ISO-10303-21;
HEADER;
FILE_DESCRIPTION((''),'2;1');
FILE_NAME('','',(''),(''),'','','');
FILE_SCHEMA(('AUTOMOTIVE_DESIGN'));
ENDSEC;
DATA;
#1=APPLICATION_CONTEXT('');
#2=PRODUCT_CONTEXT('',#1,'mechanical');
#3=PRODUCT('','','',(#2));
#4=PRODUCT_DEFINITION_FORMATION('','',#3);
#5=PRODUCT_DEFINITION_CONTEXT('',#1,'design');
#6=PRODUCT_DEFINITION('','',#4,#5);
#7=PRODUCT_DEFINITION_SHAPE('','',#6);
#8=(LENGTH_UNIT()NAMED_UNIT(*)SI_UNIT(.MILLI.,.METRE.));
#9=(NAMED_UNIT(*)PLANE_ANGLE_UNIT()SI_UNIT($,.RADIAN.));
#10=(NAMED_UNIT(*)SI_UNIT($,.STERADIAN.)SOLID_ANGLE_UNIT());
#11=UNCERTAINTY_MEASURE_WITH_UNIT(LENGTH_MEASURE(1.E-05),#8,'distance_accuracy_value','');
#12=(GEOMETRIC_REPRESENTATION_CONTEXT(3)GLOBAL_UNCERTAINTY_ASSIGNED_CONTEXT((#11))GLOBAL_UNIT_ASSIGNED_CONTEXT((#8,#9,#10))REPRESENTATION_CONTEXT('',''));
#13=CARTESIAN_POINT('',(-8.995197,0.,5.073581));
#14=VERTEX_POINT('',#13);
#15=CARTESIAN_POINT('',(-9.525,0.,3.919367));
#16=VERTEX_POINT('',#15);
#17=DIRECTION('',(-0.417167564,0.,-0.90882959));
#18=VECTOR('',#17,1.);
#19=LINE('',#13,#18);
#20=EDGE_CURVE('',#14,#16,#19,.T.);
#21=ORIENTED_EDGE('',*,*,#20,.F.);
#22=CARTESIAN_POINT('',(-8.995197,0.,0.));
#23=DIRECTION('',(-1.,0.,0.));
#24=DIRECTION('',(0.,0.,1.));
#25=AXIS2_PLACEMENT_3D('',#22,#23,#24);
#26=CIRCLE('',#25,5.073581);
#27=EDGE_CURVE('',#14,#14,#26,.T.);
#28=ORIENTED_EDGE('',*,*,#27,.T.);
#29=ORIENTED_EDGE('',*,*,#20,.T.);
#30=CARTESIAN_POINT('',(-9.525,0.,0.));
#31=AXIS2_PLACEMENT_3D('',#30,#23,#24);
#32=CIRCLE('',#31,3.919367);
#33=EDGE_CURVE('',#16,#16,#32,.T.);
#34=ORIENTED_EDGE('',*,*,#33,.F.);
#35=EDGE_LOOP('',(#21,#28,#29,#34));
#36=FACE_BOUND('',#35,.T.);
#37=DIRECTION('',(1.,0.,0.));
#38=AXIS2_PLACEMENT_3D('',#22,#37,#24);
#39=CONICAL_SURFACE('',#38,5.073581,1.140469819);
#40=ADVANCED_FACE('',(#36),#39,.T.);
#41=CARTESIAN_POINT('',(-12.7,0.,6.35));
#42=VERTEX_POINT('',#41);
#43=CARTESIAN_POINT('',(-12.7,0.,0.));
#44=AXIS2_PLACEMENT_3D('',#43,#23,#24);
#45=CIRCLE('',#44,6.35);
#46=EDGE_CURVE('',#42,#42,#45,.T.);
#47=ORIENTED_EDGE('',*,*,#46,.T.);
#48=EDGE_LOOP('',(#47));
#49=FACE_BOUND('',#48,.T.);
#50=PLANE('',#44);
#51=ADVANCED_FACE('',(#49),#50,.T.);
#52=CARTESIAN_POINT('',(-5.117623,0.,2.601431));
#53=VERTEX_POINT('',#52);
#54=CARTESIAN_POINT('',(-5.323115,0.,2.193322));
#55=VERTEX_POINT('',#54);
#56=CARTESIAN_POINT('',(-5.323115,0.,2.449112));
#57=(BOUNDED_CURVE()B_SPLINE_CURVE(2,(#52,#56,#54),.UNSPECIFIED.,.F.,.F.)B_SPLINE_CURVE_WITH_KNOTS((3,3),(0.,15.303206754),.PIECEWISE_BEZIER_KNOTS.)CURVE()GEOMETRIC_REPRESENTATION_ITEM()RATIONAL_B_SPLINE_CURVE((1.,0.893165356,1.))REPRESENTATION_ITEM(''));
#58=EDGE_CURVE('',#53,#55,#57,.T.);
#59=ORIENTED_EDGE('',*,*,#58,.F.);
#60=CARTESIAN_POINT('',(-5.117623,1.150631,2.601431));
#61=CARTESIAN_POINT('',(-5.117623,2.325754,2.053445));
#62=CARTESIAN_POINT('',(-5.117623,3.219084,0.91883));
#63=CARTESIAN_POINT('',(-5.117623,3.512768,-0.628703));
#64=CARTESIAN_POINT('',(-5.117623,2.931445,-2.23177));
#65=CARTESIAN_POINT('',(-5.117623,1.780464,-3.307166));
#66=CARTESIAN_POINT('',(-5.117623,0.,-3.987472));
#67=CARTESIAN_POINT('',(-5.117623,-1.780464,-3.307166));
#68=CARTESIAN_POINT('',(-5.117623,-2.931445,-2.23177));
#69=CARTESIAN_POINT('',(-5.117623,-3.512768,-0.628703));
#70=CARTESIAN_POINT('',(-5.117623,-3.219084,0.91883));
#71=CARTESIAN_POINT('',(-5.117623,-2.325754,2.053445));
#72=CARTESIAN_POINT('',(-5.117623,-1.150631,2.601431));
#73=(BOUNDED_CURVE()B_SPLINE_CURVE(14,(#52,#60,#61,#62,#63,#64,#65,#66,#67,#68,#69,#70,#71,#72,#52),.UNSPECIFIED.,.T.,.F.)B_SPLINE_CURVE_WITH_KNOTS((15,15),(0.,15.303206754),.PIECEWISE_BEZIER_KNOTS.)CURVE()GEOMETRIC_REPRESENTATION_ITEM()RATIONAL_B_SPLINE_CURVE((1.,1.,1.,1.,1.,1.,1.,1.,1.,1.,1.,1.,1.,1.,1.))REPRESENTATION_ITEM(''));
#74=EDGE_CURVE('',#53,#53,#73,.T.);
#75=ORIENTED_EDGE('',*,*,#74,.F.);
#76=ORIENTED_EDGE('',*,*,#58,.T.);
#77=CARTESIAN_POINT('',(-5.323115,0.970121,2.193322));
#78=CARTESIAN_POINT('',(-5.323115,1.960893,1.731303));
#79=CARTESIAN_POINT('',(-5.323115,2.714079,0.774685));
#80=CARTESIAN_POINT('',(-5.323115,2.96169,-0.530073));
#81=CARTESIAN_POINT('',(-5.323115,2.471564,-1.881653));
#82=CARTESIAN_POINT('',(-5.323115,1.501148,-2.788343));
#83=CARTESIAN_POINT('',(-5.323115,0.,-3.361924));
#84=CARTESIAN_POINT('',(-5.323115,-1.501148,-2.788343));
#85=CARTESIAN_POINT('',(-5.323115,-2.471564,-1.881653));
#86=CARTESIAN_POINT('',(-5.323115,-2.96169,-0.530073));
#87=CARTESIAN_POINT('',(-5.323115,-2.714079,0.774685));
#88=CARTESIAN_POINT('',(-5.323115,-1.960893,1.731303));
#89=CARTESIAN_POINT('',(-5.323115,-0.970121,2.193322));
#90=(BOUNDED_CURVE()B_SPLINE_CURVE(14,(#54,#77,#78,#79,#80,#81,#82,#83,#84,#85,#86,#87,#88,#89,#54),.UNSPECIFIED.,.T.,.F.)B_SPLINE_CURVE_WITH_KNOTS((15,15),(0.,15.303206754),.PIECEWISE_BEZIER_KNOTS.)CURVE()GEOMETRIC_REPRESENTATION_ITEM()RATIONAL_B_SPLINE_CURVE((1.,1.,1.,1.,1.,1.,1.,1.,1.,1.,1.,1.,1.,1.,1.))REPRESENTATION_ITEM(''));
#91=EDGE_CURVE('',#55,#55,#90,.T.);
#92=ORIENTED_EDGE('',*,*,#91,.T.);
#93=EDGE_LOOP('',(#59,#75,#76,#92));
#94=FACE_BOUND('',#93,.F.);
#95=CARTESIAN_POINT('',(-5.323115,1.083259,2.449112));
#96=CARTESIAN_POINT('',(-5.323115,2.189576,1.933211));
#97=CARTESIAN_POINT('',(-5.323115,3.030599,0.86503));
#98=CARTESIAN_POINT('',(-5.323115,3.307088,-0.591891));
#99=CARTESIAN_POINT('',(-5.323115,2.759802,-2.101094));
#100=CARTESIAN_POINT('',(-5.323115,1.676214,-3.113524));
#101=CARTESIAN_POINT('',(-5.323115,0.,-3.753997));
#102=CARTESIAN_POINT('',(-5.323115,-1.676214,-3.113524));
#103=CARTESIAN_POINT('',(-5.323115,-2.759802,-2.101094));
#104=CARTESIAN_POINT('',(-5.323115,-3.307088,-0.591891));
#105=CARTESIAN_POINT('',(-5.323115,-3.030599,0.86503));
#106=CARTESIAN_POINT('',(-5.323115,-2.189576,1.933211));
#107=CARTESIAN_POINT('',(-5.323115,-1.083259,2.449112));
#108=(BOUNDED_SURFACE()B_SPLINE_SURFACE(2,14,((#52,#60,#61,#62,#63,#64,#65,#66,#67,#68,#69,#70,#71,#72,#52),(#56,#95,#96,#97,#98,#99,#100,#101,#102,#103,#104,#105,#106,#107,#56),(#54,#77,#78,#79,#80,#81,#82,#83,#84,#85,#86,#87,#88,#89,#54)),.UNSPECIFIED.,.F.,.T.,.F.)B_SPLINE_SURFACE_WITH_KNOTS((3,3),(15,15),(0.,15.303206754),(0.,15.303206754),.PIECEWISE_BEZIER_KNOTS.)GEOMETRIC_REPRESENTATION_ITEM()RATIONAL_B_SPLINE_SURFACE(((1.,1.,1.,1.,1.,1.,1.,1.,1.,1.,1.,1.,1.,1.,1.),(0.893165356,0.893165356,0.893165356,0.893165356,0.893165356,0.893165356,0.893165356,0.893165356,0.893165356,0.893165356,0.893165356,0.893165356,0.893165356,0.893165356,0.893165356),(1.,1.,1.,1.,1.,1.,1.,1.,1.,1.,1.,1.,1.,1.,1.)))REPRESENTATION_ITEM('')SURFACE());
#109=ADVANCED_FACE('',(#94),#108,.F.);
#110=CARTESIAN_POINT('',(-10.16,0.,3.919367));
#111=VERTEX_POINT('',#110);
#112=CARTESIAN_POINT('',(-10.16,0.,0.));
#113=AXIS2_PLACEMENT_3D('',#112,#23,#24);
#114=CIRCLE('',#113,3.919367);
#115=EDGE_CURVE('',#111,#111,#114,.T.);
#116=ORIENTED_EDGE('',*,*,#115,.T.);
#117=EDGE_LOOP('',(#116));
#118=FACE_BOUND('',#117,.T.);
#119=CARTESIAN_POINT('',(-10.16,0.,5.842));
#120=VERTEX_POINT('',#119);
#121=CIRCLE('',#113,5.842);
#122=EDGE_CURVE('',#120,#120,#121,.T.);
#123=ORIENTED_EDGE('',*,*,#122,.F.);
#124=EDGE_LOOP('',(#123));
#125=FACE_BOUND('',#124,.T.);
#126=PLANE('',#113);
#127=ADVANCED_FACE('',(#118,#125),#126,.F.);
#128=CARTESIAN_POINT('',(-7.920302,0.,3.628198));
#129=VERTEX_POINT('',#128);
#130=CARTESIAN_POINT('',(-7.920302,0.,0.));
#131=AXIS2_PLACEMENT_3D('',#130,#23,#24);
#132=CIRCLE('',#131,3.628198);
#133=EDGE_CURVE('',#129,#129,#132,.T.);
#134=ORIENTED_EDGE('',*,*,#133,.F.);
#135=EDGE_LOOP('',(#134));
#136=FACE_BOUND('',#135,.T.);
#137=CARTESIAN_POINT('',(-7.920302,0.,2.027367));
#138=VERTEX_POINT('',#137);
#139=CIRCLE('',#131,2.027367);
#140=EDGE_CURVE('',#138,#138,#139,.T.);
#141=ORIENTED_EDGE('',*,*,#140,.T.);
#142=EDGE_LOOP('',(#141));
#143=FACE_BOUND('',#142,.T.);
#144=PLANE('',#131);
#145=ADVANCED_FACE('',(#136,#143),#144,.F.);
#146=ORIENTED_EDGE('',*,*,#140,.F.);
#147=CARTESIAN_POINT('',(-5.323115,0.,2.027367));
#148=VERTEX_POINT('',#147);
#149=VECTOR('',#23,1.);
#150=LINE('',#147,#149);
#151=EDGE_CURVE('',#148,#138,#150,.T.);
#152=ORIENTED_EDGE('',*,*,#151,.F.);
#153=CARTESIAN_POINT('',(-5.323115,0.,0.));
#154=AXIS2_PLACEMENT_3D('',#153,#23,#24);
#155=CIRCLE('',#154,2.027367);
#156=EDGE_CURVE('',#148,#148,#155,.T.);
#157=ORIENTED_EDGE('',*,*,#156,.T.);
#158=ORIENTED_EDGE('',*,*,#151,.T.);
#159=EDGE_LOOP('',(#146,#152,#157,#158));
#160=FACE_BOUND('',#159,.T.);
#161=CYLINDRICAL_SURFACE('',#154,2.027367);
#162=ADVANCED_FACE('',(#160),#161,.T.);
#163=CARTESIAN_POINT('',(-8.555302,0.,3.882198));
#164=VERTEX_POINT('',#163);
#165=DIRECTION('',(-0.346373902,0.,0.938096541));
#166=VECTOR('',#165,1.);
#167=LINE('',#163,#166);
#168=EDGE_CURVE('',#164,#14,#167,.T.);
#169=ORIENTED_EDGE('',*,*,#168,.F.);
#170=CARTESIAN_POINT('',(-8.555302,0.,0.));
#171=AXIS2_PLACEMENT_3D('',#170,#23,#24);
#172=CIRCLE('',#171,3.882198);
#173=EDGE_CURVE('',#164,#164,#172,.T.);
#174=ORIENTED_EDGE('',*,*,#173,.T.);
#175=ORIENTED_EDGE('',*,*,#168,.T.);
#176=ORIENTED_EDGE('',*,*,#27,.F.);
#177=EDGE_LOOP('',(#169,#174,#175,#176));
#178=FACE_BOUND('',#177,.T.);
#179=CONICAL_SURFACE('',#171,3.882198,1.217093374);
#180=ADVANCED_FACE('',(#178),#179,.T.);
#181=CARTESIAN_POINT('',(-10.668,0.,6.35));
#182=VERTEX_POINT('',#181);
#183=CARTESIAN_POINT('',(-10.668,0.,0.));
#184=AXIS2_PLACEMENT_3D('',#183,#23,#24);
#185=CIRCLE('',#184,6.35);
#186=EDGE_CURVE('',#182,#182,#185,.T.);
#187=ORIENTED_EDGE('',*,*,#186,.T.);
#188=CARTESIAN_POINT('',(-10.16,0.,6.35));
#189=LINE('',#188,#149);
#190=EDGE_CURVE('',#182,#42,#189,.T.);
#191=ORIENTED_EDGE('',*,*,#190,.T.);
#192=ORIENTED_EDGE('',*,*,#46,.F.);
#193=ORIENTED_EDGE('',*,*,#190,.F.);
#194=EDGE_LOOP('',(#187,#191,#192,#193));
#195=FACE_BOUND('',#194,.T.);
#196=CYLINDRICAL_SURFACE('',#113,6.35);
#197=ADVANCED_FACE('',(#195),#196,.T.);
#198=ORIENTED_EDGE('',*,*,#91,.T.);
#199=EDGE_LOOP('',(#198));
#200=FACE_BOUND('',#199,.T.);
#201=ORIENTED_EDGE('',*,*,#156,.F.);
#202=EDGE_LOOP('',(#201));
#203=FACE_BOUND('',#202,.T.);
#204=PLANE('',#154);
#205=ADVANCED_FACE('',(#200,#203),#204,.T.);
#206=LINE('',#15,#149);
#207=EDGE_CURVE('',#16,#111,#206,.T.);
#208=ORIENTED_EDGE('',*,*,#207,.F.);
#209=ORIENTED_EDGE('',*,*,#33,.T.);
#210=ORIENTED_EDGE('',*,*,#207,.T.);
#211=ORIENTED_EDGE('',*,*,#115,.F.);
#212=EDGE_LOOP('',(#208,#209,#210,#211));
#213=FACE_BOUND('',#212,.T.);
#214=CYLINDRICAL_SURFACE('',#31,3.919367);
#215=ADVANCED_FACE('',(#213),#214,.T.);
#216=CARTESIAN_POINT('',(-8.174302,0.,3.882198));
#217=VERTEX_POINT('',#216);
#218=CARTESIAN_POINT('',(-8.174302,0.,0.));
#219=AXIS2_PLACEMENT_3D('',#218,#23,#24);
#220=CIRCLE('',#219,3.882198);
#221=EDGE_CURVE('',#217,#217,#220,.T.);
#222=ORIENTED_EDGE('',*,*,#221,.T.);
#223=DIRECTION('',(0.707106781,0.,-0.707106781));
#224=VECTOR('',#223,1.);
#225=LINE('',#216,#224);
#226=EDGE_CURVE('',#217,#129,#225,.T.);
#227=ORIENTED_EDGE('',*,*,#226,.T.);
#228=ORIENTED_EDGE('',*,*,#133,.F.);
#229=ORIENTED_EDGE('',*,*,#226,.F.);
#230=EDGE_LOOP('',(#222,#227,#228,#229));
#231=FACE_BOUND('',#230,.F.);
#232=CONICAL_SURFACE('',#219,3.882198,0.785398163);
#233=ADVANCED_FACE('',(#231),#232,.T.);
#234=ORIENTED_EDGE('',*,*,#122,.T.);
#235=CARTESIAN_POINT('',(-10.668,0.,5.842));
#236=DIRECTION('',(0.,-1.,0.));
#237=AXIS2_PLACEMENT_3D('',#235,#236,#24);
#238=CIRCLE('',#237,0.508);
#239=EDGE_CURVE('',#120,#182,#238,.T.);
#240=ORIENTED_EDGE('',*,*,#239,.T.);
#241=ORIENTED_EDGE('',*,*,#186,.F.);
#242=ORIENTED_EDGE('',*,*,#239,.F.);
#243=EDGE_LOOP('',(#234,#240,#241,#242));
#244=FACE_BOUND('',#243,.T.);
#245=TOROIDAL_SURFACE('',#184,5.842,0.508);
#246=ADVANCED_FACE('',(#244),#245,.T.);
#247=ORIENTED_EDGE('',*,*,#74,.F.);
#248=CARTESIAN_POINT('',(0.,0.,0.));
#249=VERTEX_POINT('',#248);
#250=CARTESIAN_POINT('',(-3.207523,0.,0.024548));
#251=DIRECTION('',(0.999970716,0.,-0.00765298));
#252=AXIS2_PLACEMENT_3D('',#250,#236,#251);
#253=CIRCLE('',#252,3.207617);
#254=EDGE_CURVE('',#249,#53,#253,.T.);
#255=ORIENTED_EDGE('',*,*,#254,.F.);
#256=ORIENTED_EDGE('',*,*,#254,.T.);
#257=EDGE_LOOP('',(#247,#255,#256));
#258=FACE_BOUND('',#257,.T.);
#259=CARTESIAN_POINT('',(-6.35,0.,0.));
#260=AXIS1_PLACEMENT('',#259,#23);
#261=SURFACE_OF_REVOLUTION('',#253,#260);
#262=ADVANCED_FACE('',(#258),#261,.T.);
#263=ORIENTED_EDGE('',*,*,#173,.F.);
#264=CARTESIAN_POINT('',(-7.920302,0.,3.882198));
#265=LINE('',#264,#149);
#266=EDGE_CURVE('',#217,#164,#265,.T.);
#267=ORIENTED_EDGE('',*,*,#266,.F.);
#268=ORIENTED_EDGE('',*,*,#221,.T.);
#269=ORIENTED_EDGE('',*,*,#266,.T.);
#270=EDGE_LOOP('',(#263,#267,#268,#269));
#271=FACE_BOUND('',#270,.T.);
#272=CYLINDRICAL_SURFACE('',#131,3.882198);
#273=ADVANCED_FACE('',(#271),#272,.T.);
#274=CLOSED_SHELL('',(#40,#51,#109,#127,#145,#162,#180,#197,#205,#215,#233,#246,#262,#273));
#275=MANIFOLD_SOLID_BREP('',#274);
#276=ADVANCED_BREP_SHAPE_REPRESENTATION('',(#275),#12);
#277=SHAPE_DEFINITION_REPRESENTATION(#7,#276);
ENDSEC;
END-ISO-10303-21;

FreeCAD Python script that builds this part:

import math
import FreeCAD as App
import Part
import Sketcher
from FreeCAD import Vector
Q = App.Units.Quantity


def edges_at(feature, points):
    """Names of the edges that pass closest to the given points."""
    edges = feature.Shape.Edges
    near = lambda p: min(range(len(edges)), key=lambda i: edges[i].distToShape(Part.Vertex(*p))[0])
    return sorted({f"Edge{near(p) + 1}" for p in points})

doc = App.newDocument("Part")
params = doc.addObject("Spreadsheet::Sheet", "Params")
for row, (alias, value) in enumerate([
    ("sketch1_width", "0.5 in"),
    ("sketch1_width2", "0.1 in"),
    ("sketch1_height", "0.25 in"),
    ("sketch1_length", "0.05 in"),
    ("sketch1_width3", "0.025 in"),
    ("revolution_angle", "360 deg"),
    ("fillet_radius", "0.02 in"),
    ("fillet2_radius", "0.02 in"),
    ("chamfer_size", "0.01 in"),
], start=1):
    params.set(f"A{row}", alias)
    params.set(f"B{row}", "=" + value)
    params.setAlias(f"B{row}", alias)

body = doc.addObject("PartDesign::Body", "Body")

# Sketch on XZ plane
sketch1 = doc.addObject("Sketcher::SketchObject", "Sketch")
body.addObject(sketch1)
sketch1.AttachmentSupport = (doc.XZ_Plane, [""])
sketch1.MapMode = "FlatFace"
sketch1.addGeometry([
    Part.LineSegment(Vector(-12.7, 0, 0), Vector(0, 0, 0)),  # 0
    Part.ArcOfCircle(Part.Circle(Vector(-3.21, 0.02, 0), Vector(0, 0, 1), 3.21), math.radians(0), math.radians(131)),  # 1
    Part.LineSegment(Vector(-5.32, 2.44, 0), Vector(-5.32, 2.03, 0)),  # 2
    Part.LineSegment(Vector(-5.32, 2.03, 0), Vector(-7.92, 2.03, 0)),  # 3
    Part.LineSegment(Vector(-7.92, 2.03, 0), Vector(-7.92, 3.88, 0)),  # 4
    Part.LineSegment(Vector(-7.92, 3.88, 0), Vector(-8.56, 3.88, 0)),  # 5
    Part.LineSegment(Vector(-8.56, 3.88, 0), Vector(-9, 5.07, 0)),  # 6
    Part.LineSegment(Vector(-9, 5.07, 0), Vector(-9.53, 3.92, 0)),  # 7
    Part.LineSegment(Vector(-9.53, 3.92, 0), Vector(-10.16, 3.92, 0)),  # 8
    Part.LineSegment(Vector(-10.16, 3.92, 0), Vector(-10.16, 6.35, 0)),  # 9
    Part.LineSegment(Vector(-10.16, 6.35, 0), Vector(-12.7, 6.35, 0)),  # 10
    Part.LineSegment(Vector(-12.7, 6.35, 0), Vector(-12.7, 0, 0)),  # 11
], False)
sketch1.addConstraint([
    Sketcher.Constraint("Coincident", 0, 2, 1, 1),
    Sketcher.Constraint("Coincident", 1, 2, 2, 1),
    Sketcher.Constraint("Coincident", 2, 2, 3, 1),
    Sketcher.Constraint("Coincident", 3, 2, 4, 1),
    Sketcher.Constraint("Coincident", 4, 2, 5, 1),
    Sketcher.Constraint("Coincident", 5, 2, 6, 1),
    Sketcher.Constraint("Coincident", 6, 2, 7, 1),
    Sketcher.Constraint("Coincident", 7, 2, 8, 1),
    Sketcher.Constraint("Coincident", 8, 2, 9, 1),
    Sketcher.Constraint("Coincident", 9, 2, 10, 1),
    Sketcher.Constraint("Coincident", 10, 2, 11, 1),
    Sketcher.Constraint("Coincident", 11, 2, 0, 1),
    Sketcher.Constraint("Horizontal", 0),
    Sketcher.Constraint("Vertical", 2),
    Sketcher.Constraint("Horizontal", 3),
    Sketcher.Constraint("Vertical", 4),
    Sketcher.Constraint("Horizontal", 5),
    Sketcher.Constraint("Horizontal", 8),
    Sketcher.Constraint("Vertical", 9),
    Sketcher.Constraint("Horizontal", 10),
    Sketcher.Constraint("Vertical", 11),
    Sketcher.Constraint("Coincident", 0, 2, -1, 1),
    Sketcher.Constraint("Equal", 5, 8),
    Sketcher.Constraint("Equal", 6, 7),
    Sketcher.Constraint("DistanceX", 0, 1, 0, 2, Q("0.5 in")),
    Sketcher.Constraint("DistanceX", 10, 2, 10, 1, Q("0.1 in")),
    Sketcher.Constraint("DistanceY", 11, 2, 11, 1, Q("0.25 in")),
    Sketcher.Constraint("Distance", 6, Q("0.05 in")),
    Sketcher.Constraint("DistanceX", 5, 2, 5, 1, Q("0.025 in")),
    Sketcher.Constraint("Radius", 1, Q("3.207617 mm")),
    Sketcher.Constraint("DistanceY", 4, 1, 4, 2, Q("1.854831 mm")),
    Sketcher.Constraint("DistanceX", 5, 2, -1, 1, Q("8.555302 mm")),
    Sketcher.Constraint("DistanceY", 1, 2, 6, 2, Q("2.638 mm")),
    Sketcher.Constraint("DistanceY", 3, 2, 7, 2, Q("1.892 mm")),
    Sketcher.Constraint("DistanceY", 5, 2, 9, 2, Q("2.467802 mm")),
    Sketcher.Constraint("DistanceX", 3, 2, 3, 1, Q("2.597187 mm")),
])
sketch1.setExpression("Constraints[24]", "Params.sketch1_width")
sketch1.setExpression("Constraints[25]", "Params.sketch1_width2")
sketch1.setExpression("Constraints[26]", "Params.sketch1_height")
sketch1.setExpression("Constraints[27]", "Params.sketch1_length")
sketch1.setExpression("Constraints[28]", "Params.sketch1_width3")
revolution = doc.addObject("PartDesign::Revolution", "Revolution")
body.addObject(revolution)
revolution.Profile = sketch1
revolution.ReferenceAxis = (sketch1, ["H_Axis"])
revolution.setExpression("Angle", "Params.revolution_angle")
doc.recompute()

fillet = doc.addObject("PartDesign::Fillet", "Fillet")
body.addObject(fillet)
fillet.Base = (revolution, edges_at(revolution, [(-5.323, 0, -2.436)]))
fillet.setExpression("Radius", "Params.fillet_radius")
doc.recompute()

fillet2 = doc.addObject("PartDesign::Fillet", "Fillet001")
body.addObject(fillet2)
fillet2.Base = (fillet, edges_at(fillet, [(-10.16, 0, -6.35)]))
fillet2.setExpression("Radius", "Params.fillet2_radius")
doc.recompute()

chamfer = doc.addObject("PartDesign::Chamfer", "Chamfer")
body.addObject(chamfer)
chamfer.Base = (fillet2, edges_at(fillet2, [(-7.92, 0, -3.882)]))
chamfer.setExpression("Size", "Params.chamfer_size")

doc.recompute()
